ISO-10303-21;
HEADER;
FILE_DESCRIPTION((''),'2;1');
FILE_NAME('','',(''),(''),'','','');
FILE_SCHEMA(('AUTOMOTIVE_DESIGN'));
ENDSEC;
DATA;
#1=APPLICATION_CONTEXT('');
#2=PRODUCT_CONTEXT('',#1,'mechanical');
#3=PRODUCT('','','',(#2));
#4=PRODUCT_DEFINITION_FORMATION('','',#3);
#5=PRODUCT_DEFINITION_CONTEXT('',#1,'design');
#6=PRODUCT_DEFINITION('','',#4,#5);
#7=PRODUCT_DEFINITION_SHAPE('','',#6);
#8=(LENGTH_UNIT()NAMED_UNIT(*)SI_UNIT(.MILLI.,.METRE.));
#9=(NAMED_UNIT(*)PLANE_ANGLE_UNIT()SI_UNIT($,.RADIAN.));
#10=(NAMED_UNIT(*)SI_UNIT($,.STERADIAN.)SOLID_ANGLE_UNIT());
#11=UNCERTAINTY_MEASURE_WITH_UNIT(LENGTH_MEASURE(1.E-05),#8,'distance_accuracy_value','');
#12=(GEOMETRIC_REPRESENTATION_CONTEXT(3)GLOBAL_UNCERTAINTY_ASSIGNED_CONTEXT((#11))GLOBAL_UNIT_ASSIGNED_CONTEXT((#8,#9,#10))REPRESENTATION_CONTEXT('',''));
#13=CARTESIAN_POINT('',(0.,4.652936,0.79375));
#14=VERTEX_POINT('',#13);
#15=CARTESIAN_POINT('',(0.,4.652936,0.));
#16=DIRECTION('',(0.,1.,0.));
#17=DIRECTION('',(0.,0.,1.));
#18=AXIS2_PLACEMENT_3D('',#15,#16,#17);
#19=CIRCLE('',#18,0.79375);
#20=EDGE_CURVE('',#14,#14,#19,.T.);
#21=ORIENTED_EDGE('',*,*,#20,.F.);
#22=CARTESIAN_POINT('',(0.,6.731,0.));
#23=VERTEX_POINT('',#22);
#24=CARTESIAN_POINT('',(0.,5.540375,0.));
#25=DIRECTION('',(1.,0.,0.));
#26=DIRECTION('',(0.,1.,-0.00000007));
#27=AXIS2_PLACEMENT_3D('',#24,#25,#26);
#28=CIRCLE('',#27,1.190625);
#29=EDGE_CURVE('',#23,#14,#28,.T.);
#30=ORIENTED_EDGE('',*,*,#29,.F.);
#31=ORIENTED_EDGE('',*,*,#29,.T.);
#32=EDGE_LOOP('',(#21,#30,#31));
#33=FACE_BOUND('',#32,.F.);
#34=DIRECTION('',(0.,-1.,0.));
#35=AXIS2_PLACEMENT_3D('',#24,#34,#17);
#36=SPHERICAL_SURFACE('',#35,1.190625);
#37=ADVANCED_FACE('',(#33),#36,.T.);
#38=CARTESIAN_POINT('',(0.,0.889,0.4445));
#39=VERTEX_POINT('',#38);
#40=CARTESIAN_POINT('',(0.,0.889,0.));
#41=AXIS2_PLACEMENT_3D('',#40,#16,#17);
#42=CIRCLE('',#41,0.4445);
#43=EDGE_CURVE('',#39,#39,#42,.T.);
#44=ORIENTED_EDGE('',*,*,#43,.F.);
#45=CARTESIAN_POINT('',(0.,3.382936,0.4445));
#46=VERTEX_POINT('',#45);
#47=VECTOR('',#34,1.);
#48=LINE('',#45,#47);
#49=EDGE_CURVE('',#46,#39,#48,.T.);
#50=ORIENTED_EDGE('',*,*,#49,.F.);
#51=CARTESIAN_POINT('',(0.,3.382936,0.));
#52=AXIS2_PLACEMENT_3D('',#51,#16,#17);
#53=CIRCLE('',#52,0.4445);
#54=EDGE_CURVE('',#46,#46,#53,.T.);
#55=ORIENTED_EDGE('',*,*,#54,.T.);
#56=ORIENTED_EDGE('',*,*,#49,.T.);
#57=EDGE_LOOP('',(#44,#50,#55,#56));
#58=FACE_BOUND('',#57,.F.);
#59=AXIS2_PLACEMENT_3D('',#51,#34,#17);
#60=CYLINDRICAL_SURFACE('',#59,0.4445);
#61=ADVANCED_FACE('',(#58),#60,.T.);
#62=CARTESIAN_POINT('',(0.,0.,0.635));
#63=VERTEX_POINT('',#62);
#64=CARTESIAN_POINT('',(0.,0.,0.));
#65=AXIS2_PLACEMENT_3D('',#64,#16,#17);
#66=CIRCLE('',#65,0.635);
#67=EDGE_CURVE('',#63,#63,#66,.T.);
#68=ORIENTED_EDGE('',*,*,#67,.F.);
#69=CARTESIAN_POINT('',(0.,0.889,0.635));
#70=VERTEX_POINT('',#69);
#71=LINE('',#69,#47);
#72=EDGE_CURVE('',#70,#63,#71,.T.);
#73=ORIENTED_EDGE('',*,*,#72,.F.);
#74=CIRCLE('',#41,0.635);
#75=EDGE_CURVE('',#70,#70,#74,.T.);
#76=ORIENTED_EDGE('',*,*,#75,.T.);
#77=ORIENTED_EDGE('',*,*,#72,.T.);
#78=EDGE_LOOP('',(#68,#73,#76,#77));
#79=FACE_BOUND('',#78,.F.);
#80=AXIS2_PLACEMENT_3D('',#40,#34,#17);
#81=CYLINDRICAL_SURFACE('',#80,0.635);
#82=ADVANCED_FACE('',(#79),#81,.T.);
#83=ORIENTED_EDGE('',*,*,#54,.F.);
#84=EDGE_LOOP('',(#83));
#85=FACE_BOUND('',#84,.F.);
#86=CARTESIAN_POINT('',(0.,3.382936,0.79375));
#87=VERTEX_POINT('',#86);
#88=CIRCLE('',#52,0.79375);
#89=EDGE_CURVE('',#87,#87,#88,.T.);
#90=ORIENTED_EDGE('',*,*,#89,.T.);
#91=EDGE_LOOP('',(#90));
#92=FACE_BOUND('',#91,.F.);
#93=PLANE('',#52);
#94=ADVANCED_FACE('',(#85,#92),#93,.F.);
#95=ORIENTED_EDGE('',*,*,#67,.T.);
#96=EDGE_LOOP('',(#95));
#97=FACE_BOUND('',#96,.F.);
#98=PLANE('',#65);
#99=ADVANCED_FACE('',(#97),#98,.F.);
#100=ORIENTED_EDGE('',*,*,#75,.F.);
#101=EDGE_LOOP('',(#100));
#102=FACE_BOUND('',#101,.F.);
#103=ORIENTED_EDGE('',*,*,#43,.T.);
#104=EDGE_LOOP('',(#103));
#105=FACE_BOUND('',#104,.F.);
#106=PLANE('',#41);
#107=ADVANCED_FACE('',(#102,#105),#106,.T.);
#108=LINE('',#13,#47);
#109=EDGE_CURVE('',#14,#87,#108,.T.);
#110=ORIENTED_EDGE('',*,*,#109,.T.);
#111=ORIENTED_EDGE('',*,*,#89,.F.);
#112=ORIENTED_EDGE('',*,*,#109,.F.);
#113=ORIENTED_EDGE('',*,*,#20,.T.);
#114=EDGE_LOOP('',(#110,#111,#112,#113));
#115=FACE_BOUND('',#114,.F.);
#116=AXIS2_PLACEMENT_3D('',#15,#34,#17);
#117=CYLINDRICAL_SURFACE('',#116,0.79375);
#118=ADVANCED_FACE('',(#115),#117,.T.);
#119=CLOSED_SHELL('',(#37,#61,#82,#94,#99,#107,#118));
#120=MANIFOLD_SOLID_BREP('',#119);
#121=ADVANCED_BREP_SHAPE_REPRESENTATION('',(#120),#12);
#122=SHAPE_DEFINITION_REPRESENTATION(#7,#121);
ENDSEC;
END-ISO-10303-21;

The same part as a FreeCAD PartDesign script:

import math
import FreeCAD as App
import Part
import Sketcher
from FreeCAD import Vector
Q = App.Units.Quantity

doc = App.newDocument("Part")
body = doc.addObject("PartDesign::Body", "Body")

sketch1 = doc.addObject("Sketcher::SketchObject", "Sketch")
body.addObject(sketch1)
sketch1.AttachmentSupport = (doc.YZ_Plane, [""])
sketch1.MapMode = "FlatFace"
sketch1.addGeometry([
    Part.LineSegment(Vector(0, 0.64, 0), Vector(0, 0, 0)),
    Part.LineSegment(Vector(0, 0, 0), Vector(6.73, 0, 0)),
    Part.ArcOfCircle(Part.Circle(Vector(5.54, 0, 0), Vector(0, 0, 1), 1.19), math.radians(0), math.radians(138)),
    Part.LineSegment(Vector(4.65, 0.79, 0), Vector(3.38, 0.79, 0)),
    Part.LineSegment(Vector(3.38, 0.79, 0), Vector(3.38, 0.44, 0)),
    Part.LineSegment(Vector(3.38, 0.44, 0), Vector(0.89, 0.44, 0)),
    Part.LineSegment(Vector(0.89, 0.44, 0), Vector(0.89, 0.64, 0)),
    Part.LineSegment(Vector(0.89, 0.64, 0), Vector(0, 0.64, 0)),
], False)
sketch1.addConstraint([
    Sketcher.Constraint("Coincident", 0, 2, 1, 1),
    Sketcher.Constraint("Coincident", 1, 2, 2, 1),
    Sketcher.Constraint("Coincident", 2, 2, 3, 1),
    Sketcher.Constraint("Coincident", 3, 2, 4, 1),
    Sketcher.Constraint("Coincident", 4, 2, 5, 1),
    Sketcher.Constraint("Coincident", 5, 2, 6, 1),
    Sketcher.Constraint("Coincident", 6, 2, 7, 1),
    Sketcher.Constraint("Coincident", 7, 2, 0, 1),
    Sketcher.Constraint("Vertical", 0),
    Sketcher.Constraint("Horizontal", 1),
    Sketcher.Constraint("Horizontal", 3),
    Sketcher.Constraint("Vertical", 4),
    Sketcher.Constraint("Horizontal", 5),
    Sketcher.Constraint("Vertical", 6),
    Sketcher.Constraint("Horizontal", 7),
    Sketcher.Constraint("Coincident", 0, 2, -1, 1),
    Sketcher.Constraint("PointOnObject", 2, 3, -1),
    Sketcher.Constraint("Radius", 2, Q("0.046875 in")),
    Sketcher.Constraint("DistanceX", 3, 2, 3, 1, Q("0.05 in")),
    Sketcher.Constraint("DistanceX", 1, 1, 1, 2, Q("0.265 in")),
    Sketcher.Constraint("DistanceX", 7, 2, 7, 1, Q("0.035 in")),
    Sketcher.Constraint("DistanceY", 0, 2, 0, 1, Q("0.025 in")),
    Sketcher.Constraint("DistanceY", 6, 1, 6, 2, Q("0.0075 in")),
    Sketcher.Constraint("DistanceY", -1, 1, 2, 2, Q("0.03125 in")),
])
revolution = doc.addObject("PartDesign::Revolution", "Revolution")
body.addObject(revolution)
revolution.Profile = sketch1
revolution.ReferenceAxis = (sketch1, ["H_Axis"])
revolution.Angle = 360

doc.recompute()
